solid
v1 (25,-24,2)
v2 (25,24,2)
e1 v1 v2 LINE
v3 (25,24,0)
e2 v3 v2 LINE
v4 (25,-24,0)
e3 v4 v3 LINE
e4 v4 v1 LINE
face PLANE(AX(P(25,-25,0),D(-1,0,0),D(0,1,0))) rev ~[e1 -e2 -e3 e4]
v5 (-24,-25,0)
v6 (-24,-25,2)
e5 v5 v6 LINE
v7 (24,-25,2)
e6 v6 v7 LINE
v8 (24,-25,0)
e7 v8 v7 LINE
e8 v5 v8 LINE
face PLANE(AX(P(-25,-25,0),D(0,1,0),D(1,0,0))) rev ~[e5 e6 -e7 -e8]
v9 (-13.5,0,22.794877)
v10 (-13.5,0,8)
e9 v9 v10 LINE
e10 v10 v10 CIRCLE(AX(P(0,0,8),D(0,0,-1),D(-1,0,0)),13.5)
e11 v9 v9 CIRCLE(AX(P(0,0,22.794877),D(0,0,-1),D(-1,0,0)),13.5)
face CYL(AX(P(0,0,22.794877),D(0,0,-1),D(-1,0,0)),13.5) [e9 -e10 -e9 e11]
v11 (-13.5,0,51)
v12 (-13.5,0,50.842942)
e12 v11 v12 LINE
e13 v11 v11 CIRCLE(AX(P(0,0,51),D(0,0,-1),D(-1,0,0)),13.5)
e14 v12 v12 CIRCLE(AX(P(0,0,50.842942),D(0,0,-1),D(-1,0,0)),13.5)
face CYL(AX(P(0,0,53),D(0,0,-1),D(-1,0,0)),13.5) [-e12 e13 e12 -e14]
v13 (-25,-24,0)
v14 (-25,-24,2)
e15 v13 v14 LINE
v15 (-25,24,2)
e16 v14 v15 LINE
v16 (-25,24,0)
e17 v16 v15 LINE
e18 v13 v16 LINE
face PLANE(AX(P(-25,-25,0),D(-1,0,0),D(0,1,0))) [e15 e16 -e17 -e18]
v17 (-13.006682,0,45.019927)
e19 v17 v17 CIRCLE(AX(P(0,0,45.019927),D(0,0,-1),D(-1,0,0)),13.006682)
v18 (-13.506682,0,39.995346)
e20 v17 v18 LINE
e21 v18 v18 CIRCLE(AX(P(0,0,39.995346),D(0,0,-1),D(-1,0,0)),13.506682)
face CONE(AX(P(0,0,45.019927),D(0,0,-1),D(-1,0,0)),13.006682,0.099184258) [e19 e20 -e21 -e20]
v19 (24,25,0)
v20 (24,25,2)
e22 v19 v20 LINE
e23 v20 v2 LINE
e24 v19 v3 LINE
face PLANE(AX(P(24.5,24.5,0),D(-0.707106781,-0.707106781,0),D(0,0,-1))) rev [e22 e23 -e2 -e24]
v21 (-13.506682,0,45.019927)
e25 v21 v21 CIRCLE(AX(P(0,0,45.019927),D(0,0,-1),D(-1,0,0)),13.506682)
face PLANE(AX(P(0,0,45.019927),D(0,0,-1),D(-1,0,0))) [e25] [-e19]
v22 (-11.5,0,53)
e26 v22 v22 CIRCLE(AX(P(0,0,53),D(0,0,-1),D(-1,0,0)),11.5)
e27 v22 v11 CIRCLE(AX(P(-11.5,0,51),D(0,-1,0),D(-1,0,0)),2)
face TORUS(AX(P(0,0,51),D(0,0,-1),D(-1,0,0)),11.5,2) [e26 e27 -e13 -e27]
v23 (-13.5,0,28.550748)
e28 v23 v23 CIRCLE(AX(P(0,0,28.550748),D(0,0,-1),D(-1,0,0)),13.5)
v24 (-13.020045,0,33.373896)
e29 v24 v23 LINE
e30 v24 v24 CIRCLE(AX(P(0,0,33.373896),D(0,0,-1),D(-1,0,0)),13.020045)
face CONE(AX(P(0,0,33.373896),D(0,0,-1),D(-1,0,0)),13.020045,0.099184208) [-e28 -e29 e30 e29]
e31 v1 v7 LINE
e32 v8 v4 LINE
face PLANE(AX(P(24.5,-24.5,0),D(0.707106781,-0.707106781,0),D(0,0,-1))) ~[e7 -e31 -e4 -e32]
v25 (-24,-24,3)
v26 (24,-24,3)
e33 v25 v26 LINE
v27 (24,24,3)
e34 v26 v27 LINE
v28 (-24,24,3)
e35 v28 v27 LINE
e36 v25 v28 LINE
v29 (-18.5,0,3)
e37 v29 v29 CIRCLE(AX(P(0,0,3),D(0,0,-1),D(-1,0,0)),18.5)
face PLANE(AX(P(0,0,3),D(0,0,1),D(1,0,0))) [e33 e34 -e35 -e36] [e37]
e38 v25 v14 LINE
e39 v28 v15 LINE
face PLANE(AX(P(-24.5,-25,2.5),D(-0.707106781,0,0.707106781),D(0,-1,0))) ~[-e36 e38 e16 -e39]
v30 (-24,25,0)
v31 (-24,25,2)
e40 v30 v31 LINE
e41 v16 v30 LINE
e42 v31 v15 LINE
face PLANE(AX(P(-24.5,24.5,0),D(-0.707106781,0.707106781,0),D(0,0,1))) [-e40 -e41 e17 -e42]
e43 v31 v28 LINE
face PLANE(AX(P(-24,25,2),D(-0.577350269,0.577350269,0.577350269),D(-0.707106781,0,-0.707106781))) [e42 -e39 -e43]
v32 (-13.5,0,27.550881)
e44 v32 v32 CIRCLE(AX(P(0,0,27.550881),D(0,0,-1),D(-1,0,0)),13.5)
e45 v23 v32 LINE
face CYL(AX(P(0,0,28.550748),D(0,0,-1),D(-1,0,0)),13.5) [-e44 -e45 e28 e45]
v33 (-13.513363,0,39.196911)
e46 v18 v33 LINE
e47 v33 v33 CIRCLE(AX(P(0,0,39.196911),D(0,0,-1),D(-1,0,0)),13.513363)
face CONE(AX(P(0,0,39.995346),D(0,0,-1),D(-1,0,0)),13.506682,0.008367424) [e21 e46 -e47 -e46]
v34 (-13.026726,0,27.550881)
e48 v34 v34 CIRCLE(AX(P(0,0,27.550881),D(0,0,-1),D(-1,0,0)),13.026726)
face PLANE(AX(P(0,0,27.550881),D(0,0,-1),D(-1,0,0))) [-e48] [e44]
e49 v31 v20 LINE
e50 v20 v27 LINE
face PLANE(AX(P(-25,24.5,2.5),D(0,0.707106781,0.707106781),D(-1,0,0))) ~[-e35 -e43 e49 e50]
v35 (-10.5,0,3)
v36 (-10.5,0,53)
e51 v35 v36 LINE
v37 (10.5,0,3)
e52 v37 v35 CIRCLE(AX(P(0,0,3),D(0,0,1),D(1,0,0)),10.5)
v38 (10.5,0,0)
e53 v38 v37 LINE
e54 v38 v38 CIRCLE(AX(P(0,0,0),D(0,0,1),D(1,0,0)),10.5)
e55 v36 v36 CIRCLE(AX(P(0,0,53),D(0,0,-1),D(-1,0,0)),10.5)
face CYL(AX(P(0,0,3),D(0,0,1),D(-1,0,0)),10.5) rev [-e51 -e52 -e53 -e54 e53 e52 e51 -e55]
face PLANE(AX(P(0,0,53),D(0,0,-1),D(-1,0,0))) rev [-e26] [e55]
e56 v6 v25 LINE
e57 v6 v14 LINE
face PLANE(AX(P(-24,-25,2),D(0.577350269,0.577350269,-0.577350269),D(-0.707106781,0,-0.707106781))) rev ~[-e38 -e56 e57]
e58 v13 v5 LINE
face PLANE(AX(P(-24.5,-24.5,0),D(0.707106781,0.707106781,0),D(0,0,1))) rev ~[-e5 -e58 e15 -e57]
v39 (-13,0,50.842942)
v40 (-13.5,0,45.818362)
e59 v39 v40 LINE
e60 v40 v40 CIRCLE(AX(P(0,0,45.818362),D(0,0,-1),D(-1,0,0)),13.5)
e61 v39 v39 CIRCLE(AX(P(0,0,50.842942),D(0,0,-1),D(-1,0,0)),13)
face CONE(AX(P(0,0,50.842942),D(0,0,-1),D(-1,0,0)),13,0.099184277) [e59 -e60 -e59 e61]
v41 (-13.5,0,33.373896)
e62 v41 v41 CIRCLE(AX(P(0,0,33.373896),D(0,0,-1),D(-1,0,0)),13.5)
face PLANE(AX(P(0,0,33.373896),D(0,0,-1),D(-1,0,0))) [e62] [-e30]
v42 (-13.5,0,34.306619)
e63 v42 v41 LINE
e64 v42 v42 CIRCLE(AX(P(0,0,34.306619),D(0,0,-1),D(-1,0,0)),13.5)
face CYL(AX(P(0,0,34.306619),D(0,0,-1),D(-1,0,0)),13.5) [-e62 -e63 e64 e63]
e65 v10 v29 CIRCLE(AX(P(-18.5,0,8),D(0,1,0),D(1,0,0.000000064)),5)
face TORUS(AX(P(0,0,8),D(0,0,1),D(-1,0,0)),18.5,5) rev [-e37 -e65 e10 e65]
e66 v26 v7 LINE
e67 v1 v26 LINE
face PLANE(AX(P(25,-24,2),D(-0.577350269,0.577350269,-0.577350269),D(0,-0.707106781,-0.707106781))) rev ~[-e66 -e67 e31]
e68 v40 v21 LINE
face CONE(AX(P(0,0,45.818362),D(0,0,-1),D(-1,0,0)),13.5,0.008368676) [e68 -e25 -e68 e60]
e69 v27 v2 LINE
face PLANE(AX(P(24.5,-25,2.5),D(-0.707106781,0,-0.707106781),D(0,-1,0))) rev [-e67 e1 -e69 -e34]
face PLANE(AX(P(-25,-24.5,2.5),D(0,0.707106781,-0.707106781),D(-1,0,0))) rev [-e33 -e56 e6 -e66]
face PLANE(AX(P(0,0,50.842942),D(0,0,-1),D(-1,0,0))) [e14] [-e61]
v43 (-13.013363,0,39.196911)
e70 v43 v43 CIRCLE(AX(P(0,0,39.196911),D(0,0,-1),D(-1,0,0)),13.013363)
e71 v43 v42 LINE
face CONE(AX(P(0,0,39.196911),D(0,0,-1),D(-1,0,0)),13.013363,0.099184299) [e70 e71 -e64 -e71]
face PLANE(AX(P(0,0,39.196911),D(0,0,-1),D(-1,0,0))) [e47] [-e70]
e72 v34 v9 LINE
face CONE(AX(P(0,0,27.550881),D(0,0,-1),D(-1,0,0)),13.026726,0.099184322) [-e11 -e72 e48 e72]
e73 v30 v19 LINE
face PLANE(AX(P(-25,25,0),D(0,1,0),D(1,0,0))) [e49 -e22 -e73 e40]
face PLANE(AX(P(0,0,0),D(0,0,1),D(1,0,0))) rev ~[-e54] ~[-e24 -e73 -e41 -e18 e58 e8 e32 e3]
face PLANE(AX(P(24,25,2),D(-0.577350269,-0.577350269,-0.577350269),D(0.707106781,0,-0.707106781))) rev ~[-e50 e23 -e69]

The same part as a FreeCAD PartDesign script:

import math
import FreeCAD as App
import Part
import Sketcher

V = App.Vector
Q = App.Units.Quantity


def edges_at(feature, points):
    """Names of the edges that pass closest to the given points."""
    edges = feature.Shape.Edges
    near = lambda p: min(range(len(edges)), key=lambda i: edges[i].distToShape(Part.Vertex(*p))[0])
    return sorted({f"Edge{near(p) + 1}" for p in points})

doc = App.newDocument("Part")
body = doc.addObject("PartDesign::Body", "Body")

sketch1 = body.newObject("Sketcher::SketchObject", "Sketch")
sketch1.AttachmentSupport = (doc.getObject("XY_Plane"), [""])
sketch1.MapMode = "FlatFace"
sketch1.addGeometry([
    Part.LineSegment(V(-25, 25, 0), V(-25, -25, 0)),
    Part.LineSegment(V(-25, -25, 0), V(25, -25, 0)),
    Part.LineSegment(V(25, -25, 0), V(25, 25, 0)),
    Part.LineSegment(V(25, 25, 0), V(-25, 25, 0)),
    Part.Circle(V(0, 0, 0), V(0, 0, 1), 10),
], False)
sketch1.addConstraint([
    Sketcher.Constraint("Coincident", 0, 2, 1, 1),
    Sketcher.Constraint("Coincident", 1, 2, 2, 1),
    Sketcher.Constraint("Coincident", 2, 2, 3, 1),
    Sketcher.Constraint("Coincident", 3, 2, 0, 1),
    Sketcher.Constraint("Vertical", 0),
    Sketcher.Constraint("Horizontal", 1),
    Sketcher.Constraint("Vertical", 2),
    Sketcher.Constraint("Horizontal", 3),
    Sketcher.Constraint("Coincident", 4, 3, -1, 1),
    Sketcher.Constraint("Symmetric", 0, 2, 2, 2, -1, 1),
    Sketcher.Constraint("Equal", 3, 0),
    Sketcher.Constraint("Diameter", 4, Q("21 mm")),
    Sketcher.Constraint("DistanceX", 1, 1, 1, 2, Q("50 mm")),
])
pad1 = body.newObject("PartDesign::Pad", "Pad")
pad1.Profile = sketch1
pad1.Length = 3

sketch2 = body.newObject("Sketcher::SketchObject", "Sketch001")
sketch2.AttachmentSupport = (doc.getObject("XZ_Plane"), [""])
sketch2.MapMode = "FlatFace"
sketch2.addGeometry([
    Part.LineSegment(V(-10.5, 3, 0), V(-10.5, 53, 0)),
    Part.LineSegment(V(-10.5, 53, 0), V(-13.5, 53, 0)),
    Part.LineSegment(V(-13.5, 53, 0), V(-13.5, 50.84, 0)),
    Part.LineSegment(V(-13.5, 50.84, 0), V(-13, 50.84, 0)),
    Part.LineSegment(V(-13, 50.84, 0), V(-13.5, 45.82, 0)),
    Part.LineSegment(V(-13.5, 45.82, 0), V(-13.51, 45.02, 0)),
    Part.LineSegment(V(-13.51, 45.02, 0), V(-13.01, 45.02, 0)),
    Part.LineSegment(V(-13.01, 45.02, 0), V(-13.51, 40, 0)),
    Part.LineSegment(V(-13.51, 40, 0), V(-13.51, 39.2, 0)),
    Part.LineSegment(V(-13.51, 39.2, 0), V(-13.01, 39.2, 0)),
    Part.LineSegment(V(-13.01, 39.2, 0), V(-13.5, 34.31, 0)),
    Part.LineSegment(V(-13.5, 34.31, 0), V(-13.5, 33.37, 0)),
    Part.LineSegment(V(-13.5, 33.37, 0), V(-13.02, 33.37, 0)),
    Part.LineSegment(V(-13.02, 33.37, 0), V(-13.5, 28.55, 0)),
    Part.LineSegment(V(-13.5, 28.55, 0), V(-13.5, 27.55, 0)),
    Part.LineSegment(V(-13.5, 27.55, 0), V(-13.03, 27.55, 0)),
    Part.LineSegment(V(-13.03, 27.55, 0), V(-13.5, 22.79, 0)),
    Part.LineSegment(V(-13.5, 22.79, 0), V(-13.5, 8, 0)),
    Part.ArcOfCircle(Part.Circle(V(-18.5, 8, 0), V(0, 0, 1), 5), math.radians(-90), math.radians(0)),
    Part.LineSegment(V(-18.5, 3, 0), V(-10.5, 3, 0)),
], False)
sketch2.addConstraint([
    Sketcher.Constraint("Coincident", 0, 2, 1, 1),
    Sketcher.Constraint("Coincident", 1, 2, 2, 1),
    Sketcher.Constraint("Coincident", 2, 2, 3, 1),
    Sketcher.Constraint("Coincident", 3, 2, 4, 1),
    Sketcher.Constraint("Coincident", 4, 2, 5, 1),
    Sketcher.Constraint("Coincident", 5, 2, 6, 1),
    Sketcher.Constraint("Coincident", 6, 2, 7, 1),
    Sketcher.Constraint("Coincident", 7, 2, 8, 1),
    Sketcher.Constraint("Coincident", 8, 2, 9, 1),
    Sketcher.Constraint("Coincident", 9, 2, 10, 1),
    Sketcher.Constraint("Coincident", 10, 2, 11, 1),
    Sketcher.Constraint("Coincident", 11, 2, 12, 1),
    Sketcher.Constraint("Coincident", 12, 2, 13, 1),
    Sketcher.Constraint("Coincident", 13, 2, 14, 1),
    Sketcher.Constraint("Coincident", 14, 2, 15, 1),
    Sketcher.Constraint("Coincident", 15, 2, 16, 1),
    Sketcher.Constraint("Coincident", 16, 2, 17, 1),
    Sketcher.Constraint("Tangent", 17, 2, 18, 2),
    Sketcher.Constraint("Tangent", 18, 1, 19, 1),
    Sketcher.Constraint("Coincident", 19, 2, 0, 1),
    Sketcher.Constraint("Vertical", 0),
    Sketcher.Constraint("Horizontal", 1),
    Sketcher.Constraint("Vertical", 2),
    Sketcher.Constraint("Horizontal", 3),
    Sketcher.Constraint("Horizontal", 6),
    Sketcher.Constraint("Horizontal", 9),
    Sketcher.Constraint("Vertical", 11),
    Sketcher.Constraint("Horizontal", 12),
    Sketcher.Constraint("Vertical", 14),
    Sketcher.Constraint("Horizontal", 15),
    Sketcher.Constraint("Vertical", 17),
    Sketcher.Constraint("Horizontal", 19),
    Sketcher.Constraint("Parallel", 4, 7),
    Sketcher.Constraint("Parallel", 5, 8),
    Sketcher.Constraint("Parallel", 7, 10),
    Sketcher.Constraint("Parallel", 10, 13),
    Sketcher.Constraint("Parallel", 13, 16),
    Sketcher.Constraint("Vertical", 2, 2, 4, 2),
    Sketcher.Constraint("Vertical", 5, 2, 7, 2),
    Sketcher.Constraint("Vertical", 4, 2, 10, 2),
    Sketcher.Constraint("Vertical", 11, 2, 13, 2),
    Sketcher.Constraint("Vertical", 14, 2, 16, 2),
    Sketcher.Constraint("Equal", 3, 6),
    Sketcher.Constraint("Equal", 6, 9),
    Sketcher.Constraint("Equal", 5, 8),
    Sketcher.Constraint("Radius", 18, Q("5 mm")),
    Sketcher.Constraint("DistanceX", 1, 2, 1, 1, Q("3 mm")),
    Sketcher.Constraint("DistanceY", 0, 1, 0, 2, Q("50 mm")),
    Sketcher.Constraint("DistanceX", 3, 1, 3, 2, Q("0.5 mm")),
    Sketcher.Constraint("DistanceY", -1, 1, 18, 3, Q("8 mm")),
    Sketcher.Constraint("DistanceX", 3, 2, -1, 1, Q("13 mm")),
    Sketcher.Constraint("Distance", 13, Q("4.84697 mm")),
    Sketcher.Constraint("DistanceX", 12, 1, 12, 2, Q("0.479955 mm")),
    Sketcher.Constraint("DistanceX", 15, 1, 15, 2, Q("0.473274 mm")),
    Sketcher.Constraint("DistanceY", 2, 2, 2, 1, Q("2.157058 mm")),
    Sketcher.Constraint("DistanceY", 11, 2, 11, 1, Q("0.932723 mm")),
    Sketcher.Constraint("DistanceY", 14, 2, 14, 1, Q("0.999867 mm")),
    Sketcher.Constraint("DistanceY", 17, 2, 17, 1, Q("14.794877 mm")),
    Sketcher.Constraint("DistanceY", -1, 1, 8, 2, Q("39.196911 mm")),
])
revolution = body.newObject("PartDesign::Revolution", "Revolution")
revolution.Profile = sketch2
revolution.ReferenceAxis = (sketch2, ["V_Axis"])
revolution.Angle = 360
doc.recompute()

fillet = body.newObject("PartDesign::Fillet", "Fillet")
fillet.Base = (revolution, edges_at(revolution, [(13.5, 0, 53)]))
fillet.Radius = 2
doc.recompute()

chamfer = body.newObject("PartDesign::Chamfer", "Chamfer")
chamfer.Base = (fillet, edges_at(fillet, [
    (-25, 0, 3),
    (0, -25, 3),
    (25, 0, 3),
    (0, 25, 3),
    (-25, -25, 1.5),
    (25, -25, 1.5),
    (25, 25, 1.5),
    (-25, 25, 1.5),
]))
chamfer.Size = 1

doc.recompute()
